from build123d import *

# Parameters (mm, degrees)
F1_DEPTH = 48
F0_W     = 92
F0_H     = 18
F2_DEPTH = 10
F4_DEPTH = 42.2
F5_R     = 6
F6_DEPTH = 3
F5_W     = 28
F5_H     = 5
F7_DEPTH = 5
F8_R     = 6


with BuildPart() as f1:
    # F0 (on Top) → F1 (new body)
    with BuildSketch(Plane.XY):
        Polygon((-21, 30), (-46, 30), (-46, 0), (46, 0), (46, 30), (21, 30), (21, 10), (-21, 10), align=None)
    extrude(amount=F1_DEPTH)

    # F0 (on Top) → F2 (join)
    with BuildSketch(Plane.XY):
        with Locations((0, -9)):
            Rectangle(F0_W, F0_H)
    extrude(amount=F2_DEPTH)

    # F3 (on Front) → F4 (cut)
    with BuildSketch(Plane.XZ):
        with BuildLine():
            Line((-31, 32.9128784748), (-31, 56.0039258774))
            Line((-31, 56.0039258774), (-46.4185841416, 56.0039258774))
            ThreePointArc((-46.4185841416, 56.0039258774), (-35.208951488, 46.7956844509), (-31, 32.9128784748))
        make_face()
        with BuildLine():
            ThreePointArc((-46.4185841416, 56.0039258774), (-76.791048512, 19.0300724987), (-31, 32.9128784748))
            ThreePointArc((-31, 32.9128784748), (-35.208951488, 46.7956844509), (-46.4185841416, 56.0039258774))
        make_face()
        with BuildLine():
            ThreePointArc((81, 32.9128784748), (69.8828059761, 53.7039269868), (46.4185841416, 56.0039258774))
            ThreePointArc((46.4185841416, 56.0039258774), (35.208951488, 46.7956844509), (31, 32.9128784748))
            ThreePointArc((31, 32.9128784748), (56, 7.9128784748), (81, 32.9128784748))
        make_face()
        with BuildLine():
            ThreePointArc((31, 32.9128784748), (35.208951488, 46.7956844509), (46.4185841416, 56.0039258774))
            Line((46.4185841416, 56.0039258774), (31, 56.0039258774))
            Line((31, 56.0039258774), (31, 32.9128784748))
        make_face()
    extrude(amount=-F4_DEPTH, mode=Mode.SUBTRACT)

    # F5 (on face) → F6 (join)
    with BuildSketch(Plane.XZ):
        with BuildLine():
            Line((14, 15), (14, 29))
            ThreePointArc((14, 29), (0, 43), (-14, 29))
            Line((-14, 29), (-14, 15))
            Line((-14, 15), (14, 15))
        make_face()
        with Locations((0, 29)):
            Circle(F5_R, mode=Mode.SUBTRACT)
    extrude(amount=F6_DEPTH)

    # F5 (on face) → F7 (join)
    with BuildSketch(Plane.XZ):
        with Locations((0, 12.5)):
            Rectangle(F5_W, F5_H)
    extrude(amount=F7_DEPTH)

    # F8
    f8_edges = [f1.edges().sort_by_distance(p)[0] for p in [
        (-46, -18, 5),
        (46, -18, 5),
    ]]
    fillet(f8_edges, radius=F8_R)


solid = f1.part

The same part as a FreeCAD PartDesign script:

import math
import FreeCAD as App
import Part
import Sketcher
Q = App.Units.Quantity


def edges_at(feature, points):
    """Names of the edges that pass closest to the given points."""
    edges = feature.Shape.Edges
    near = lambda p: min(range(len(edges)), key=lambda i: edges[i].distToShape(Part.Vertex(*p))[0])
    return sorted({f"Edge{near(p) + 1}" for p in points})

doc = App.newDocument("Part")
body = doc.addObject("PartDesign::Body", "Body")

# Sketch on XY plane
sketch1 = body.newObject("Sketcher::SketchObject", "Sketch")
sketch1.AttachmentSupport = (doc.getObject("XY_Plane"), [""])
sketch1.MapMode = "FlatFace"
sketch1.addGeometry(Part.LineSegment(App.Vector(-21, 30, 0), App.Vector(-46, 30, 0)), False)
sketch1.addGeometry(Part.LineSegment(App.Vector(-46, 30, 0), App.Vector(-46, 0, 0)), False)
sketch1.addGeometry(Part.LineSegment(App.Vector(-46, 0, 0), App.Vector(46, 0, 0)), False)
sketch1.addGeometry(Part.LineSegment(App.Vector(46, 0, 0), App.Vector(46, 30, 0)), False)
sketch1.addGeometry(Part.LineSegment(App.Vector(46, 30, 0), App.Vector(21, 30, 0)), False)
sketch1.addGeometry(Part.LineSegment(App.Vector(21, 30, 0), App.Vector(21, 10, 0)), False)
sketch1.addGeometry(Part.LineSegment(App.Vector(21, 10, 0), App.Vector(-21, 10, 0)), False)
sketch1.addGeometry(Part.LineSegment(App.Vector(-21, 10, 0), App.Vector(-21, 30, 0)), False)
sketch1.addConstraint(Sketcher.Constraint("Coincident", 0, 2, 1, 1))
sketch1.addConstraint(Sketcher.Constraint("Coincident", 1, 2, 2, 1))
sketch1.addConstraint(Sketcher.Constraint("Coincident", 2, 2, 3, 1))
sketch1.addConstraint(Sketcher.Constraint("Coincident", 3, 2, 4, 1))
sketch1.addConstraint(Sketcher.Constraint("Coincident", 4, 2, 5, 1))
sketch1.addConstraint(Sketcher.Constraint("Coincident", 5, 2, 6, 1))
sketch1.addConstraint(Sketcher.Constraint("Coincident", 6, 2, 7, 1))
sketch1.addConstraint(Sketcher.Constraint("Coincident", 7, 2, 0, 1))
sketch1.addConstraint(Sketcher.Constraint("Horizontal", 0))
sketch1.addConstraint(Sketcher.Constraint("Vertical", 1))
sketch1.addConstraint(Sketcher.Constraint("Horizontal", 2))
sketch1.addConstraint(Sketcher.Constraint("Vertical", 3))
sketch1.addConstraint(Sketcher.Constraint("Horizontal", 4))
sketch1.addConstraint(Sketcher.Constraint("Vertical", 5))
sketch1.addConstraint(Sketcher.Constraint("Horizontal", 6))
sketch1.addConstraint(Sketcher.Constraint("Vertical", 7))
sketch1.addConstraint(Sketcher.Constraint("Symmetric", 1, 2, 2, 2, -1, 1))
sketch1.addConstraint(Sketcher.Constraint("Symmetric", 4, 2, 7, 2, -2))
sketch1.addConstraint(Sketcher.Constraint("DistanceX", 0, 2, 0, 1, Q("25 mm")))
sketch1.addConstraint(Sketcher.Constraint("DistanceX", 2, 1, 2, 2, Q("92 mm")))
sketch1.addConstraint(Sketcher.Constraint("DistanceY", 1, 2, 1, 1, Q("30 mm")))
sketch1.addConstraint(Sketcher.Constraint("DistanceY", 5, 2, 5, 1, Q("20 mm")))
pad1 = body.newObject("PartDesign::Pad", "Pad")
pad1.Profile = sketch1
pad1.Length = 48

# Sketch on XY plane
sketch2 = body.newObject("Sketcher::SketchObject", "Sketch001")
sketch2.AttachmentSupport = (doc.getObject("XY_Plane"), [""])
sketch2.MapMode = "FlatFace"
sketch2.addGeometry(Part.LineSegment(App.Vector(-46, 0, 0), App.Vector(-46, -18, 0)), False)
sketch2.addGeometry(Part.LineSegment(App.Vector(-46, -18, 0), App.Vector(46, -18, 0)), False)
sketch2.addGeometry(Part.LineSegment(App.Vector(46, -18, 0), App.Vector(46, 0, 0)), False)
sketch2.addGeometry(Part.LineSegment(App.Vector(46, 0, 0), App.Vector(-46, 0, 0)), False)
sketch2.addConstraint(Sketcher.Constraint("Coincident", 0, 2, 1, 1))
sketch2.addConstraint(Sketcher.Constraint("Coincident", 1, 2, 2, 1))
sketch2.addConstraint(Sketcher.Constraint("Coincident", 2, 2, 3, 1))
sketch2.addConstraint(Sketcher.Constraint("Coincident", 3, 2, 0, 1))
sketch2.addConstraint(Sketcher.Constraint("Vertical", 0))
sketch2.addConstraint(Sketcher.Constraint("Horizontal", 1))
sketch2.addConstraint(Sketcher.Constraint("Vertical", 2))
sketch2.addConstraint(Sketcher.Constraint("Horizontal", 3))
sketch2.addConstraint(Sketcher.Constraint("Symmetric", 2, 2, 3, 2, -1, 1))
sketch2.addConstraint(Sketcher.Constraint("DistanceX", 1, 1, 1, 2, Q("92 mm")))
sketch2.addConstraint(Sketcher.Constraint("DistanceY", 0, 2, 0, 1, Q("18 mm")))
pad2 = body.newObject("PartDesign::Pad", "Pad001")
pad2.Profile = sketch2
pad2.Length = 10

# Sketch on XZ plane
sketch3 = body.newObject("Sketcher::SketchObject", "Sketch002")
sketch3.AttachmentSupport = (doc.getObject("XZ_Plane"), [""])
sketch3.MapMode = "FlatFace"
sketch3.addGeometry(Part.LineSegment(App.Vector(-31, 32.912878, 0), App.Vector(-31, 56.003926, 0)), False)
sketch3.addGeometry(Part.LineSegment(App.Vector(-31, 56.003926, 0), App.Vector(-46.418584, 56.003926, 0)), False)
sketch3.addGeometry(Part.ArcOfCircle(Part.Circle(App.Vector(-56, 32.912878, 0), App.Vector(0, 0, 1), 25), math.radians(67.464447), math.radians(360)), False)
sketch3.addGeometry(Part.ArcOfCircle(Part.Circle(App.Vector(56, 32.912878, 0), App.Vector(0, 0, 1), 25), math.radians(0), math.radians(112.535553)), False)
sketch3.addGeometry(Part.LineSegment(App.Vector(46.418584, 56.003926, 0), App.Vector(31, 56.003926, 0)), False)
sketch3.addGeometry(Part.LineSegment(App.Vector(31, 56.003926, 0), App.Vector(31, 32.912878, 0)), False)
sketch3.addGeometry(Part.ArcOfCircle(Part.Circle(App.Vector(56, 32.912878, 0), App.Vector(0, 0, 1), 25), math.radians(180), math.radians(360)), False)
sketch3.addConstraint(Sketcher.Constraint("Coincident", 0, 2, 1, 1))
sketch3.addConstraint(Sketcher.Constraint("Coincident", 1, 2, 2, 1))
sketch3.addConstraint(Sketcher.Constraint("Tangent", 2, 2, 0, 1))
sketch3.addConstraint(Sketcher.Constraint("Coincident", 3, 2, 4, 1))
sketch3.addConstraint(Sketcher.Constraint("Coincident", 4, 2, 5, 1))
sketch3.addConstraint(Sketcher.Constraint("Tangent", 5, 2, 6, 1))
sketch3.addConstraint(Sketcher.Constraint("Tangent", 6, 2, 3, 1))
sketch3.addConstraint(Sketcher.Constraint("Vertical", 0))
sketch3.addConstraint(Sketcher.Constraint("Horizontal", 1))
sketch3.addConstraint(Sketcher.Constraint("Horizontal", 4))
sketch3.addConstraint(Sketcher.Constraint("Vertical", 5))
sketch3.addConstraint(Sketcher.Constraint("Equal", 2, 3))
sketch3.addConstraint(Sketcher.Constraint("Equal", 3, 6))
sketch3.addConstraint(Sketcher.Constraint("Symmetric", 2, 3, 3, 3, -2))
sketch3.addConstraint(Sketcher.Constraint("Horizontal", 1, 2, 3, 2))
sketch3.addConstraint(Sketcher.Constraint("Horizontal", 5, 2, 6, 2))
sketch3.addConstraint(Sketcher.Constraint("Radius", 2, Q("25 mm")))
sketch3.addConstraint(Sketcher.Constraint("DistanceX", 2, 3, -1, 1, Q("56 mm")))
sketch3.addConstraint(Sketcher.Constraint("DistanceX", 1, 2, 1, 1, Q("15.418584 mm")))
sketch3.addConstraint(Sketcher.Constraint("DistanceY", -1, 1, 2, 3, Q("32.912878 mm")))
pocket1 = body.newObject("PartDesign::Pocket", "Pocket")
pocket1.Profile = sketch3
pocket1.Length = 42.2

# Sketch on XZ plane
sketch4 = body.newObject("Sketcher::SketchObject", "Sketch003")
sketch4.AttachmentSupport = (doc.getObject("XZ_Plane"), [""])
sketch4.MapMode = "FlatFace"
sketch4.addGeometry(Part.LineSegment(App.Vector(14, 15, 0), App.Vector(14, 29, 0)), False)
sketch4.addGeometry(Part.ArcOfCircle(Part.Circle(App.Vector(0, 29, 0), App.Vector(0, 0, 1), 14), math.radians(0), math.radians(180)), False)
sketch4.addGeometry(Part.LineSegment(App.Vector(-14, 29, 0), App.Vector(-14, 15, 0)), False)
sketch4.addGeometry(Part.LineSegment(App.Vector(-14, 15, 0), App.Vector(14, 15, 0)), False)
sketch4.addGeometry(Part.Circle(App.Vector(0, 29, 0), App.Vector(0, 0, 1), 6), False)
sketch4.addConstraint(Sketcher.Constraint("Tangent", 0, 2, 1, 1))
sketch4.addConstraint(Sketcher.Constraint("Tangent", 1, 2, 2, 1))
sketch4.addConstraint(Sketcher.Constraint("Coincident", 2, 2, 3, 1))
sketch4.addConstraint(Sketcher.Constraint("Coincident", 3, 2, 0, 1))
sketch4.addConstraint(Sketcher.Constraint("Vertical", 0))
sketch4.addConstraint(Sketcher.Constraint("Vertical", 2))
sketch4.addConstraint(Sketcher.Constraint("Horizontal", 3))
sketch4.addConstraint(Sketcher.Constraint("Coincident", 4, 3, 1, 3))
sketch4.addConstraint(Sketcher.Constraint("PointOnObject", 1, 3, -2))
sketch4.addConstraint(Sketcher.Constraint("Diameter", 4, Q("12 mm")))
sketch4.addConstraint(Sketcher.Constraint("Radius", 1, Q("14 mm")))
sketch4.addConstraint(Sketcher.Constraint("DistanceY", 0, 1, 0, 2, Q("14 mm")))
sketch4.addConstraint(Sketcher.Constraint("DistanceY", -1, 1, 1, 3, Q("29 mm")))
pad3 = body.newObject("PartDesign::Pad", "Pad002")
pad3.Profile = sketch4
pad3.Length = 3

# Sketch on XZ plane
sketch5 = body.newObject("Sketcher::SketchObject", "Sketch004")
sketch5.AttachmentSupport = (doc.getObject("XZ_Plane"), [""])
sketch5.MapMode = "FlatFace"
sketch5.addGeometry(Part.LineSegment(App.Vector(-14, 15, 0), App.Vector(-14, 10, 0)), False)
sketch5.addGeometry(Part.LineSegment(App.Vector(-14, 10, 0), App.Vector(14, 10, 0)), False)
sketch5.addGeometry(Part.LineSegment(App.Vector(14, 10, 0), App.Vector(14, 15, 0)), False)
sketch5.addGeometry(Part.LineSegment(App.Vector(14, 15, 0), App.Vector(-14, 15, 0)), False)
sketch5.addConstraint(Sketcher.Constraint("Coincident", 0, 2, 1, 1))
sketch5.addConstraint(Sketcher.Constraint("Coincident", 1, 2, 2, 1))
sketch5.addConstraint(Sketcher.Constraint("Coincident", 2, 2, 3, 1))
sketch5.addConstraint(Sketcher.Constraint("Coincident", 3, 2, 0, 1))
sketch5.addConstraint(Sketcher.Constraint("Vertical", 0))
sketch5.addConstraint(Sketcher.Constraint("Horizontal", 1))
sketch5.addConstraint(Sketcher.Constraint("Vertical", 2))
sketch5.addConstraint(Sketcher.Constraint("Horizontal", 3))
sketch5.addConstraint(Sketcher.Constraint("DistanceX", 1, 1, 1, 2, Q("28 mm")))
sketch5.addConstraint(Sketcher.Constraint("DistanceY", 0, 2, 0, 1, Q("5 mm")))
sketch5.addConstraint(Sketcher.Constraint("DistanceX", 0, 2, -1, 1, Q("14 mm")))
sketch5.addConstraint(Sketcher.Constraint("DistanceY", -1, 1, 0, 2, Q("10 mm")))
pad4 = body.newObject("PartDesign::Pad", "Pad003")
pad4.Profile = sketch5
pad4.Length = 5
doc.recompute()

fillet = body.newObject("PartDesign::Fillet", "Fillet")
fillet.Base = (pad4, edges_at(pad4, [(-46, -18, 5), (46, -18, 5)]))
fillet.Radius = 6

doc.recompute()
